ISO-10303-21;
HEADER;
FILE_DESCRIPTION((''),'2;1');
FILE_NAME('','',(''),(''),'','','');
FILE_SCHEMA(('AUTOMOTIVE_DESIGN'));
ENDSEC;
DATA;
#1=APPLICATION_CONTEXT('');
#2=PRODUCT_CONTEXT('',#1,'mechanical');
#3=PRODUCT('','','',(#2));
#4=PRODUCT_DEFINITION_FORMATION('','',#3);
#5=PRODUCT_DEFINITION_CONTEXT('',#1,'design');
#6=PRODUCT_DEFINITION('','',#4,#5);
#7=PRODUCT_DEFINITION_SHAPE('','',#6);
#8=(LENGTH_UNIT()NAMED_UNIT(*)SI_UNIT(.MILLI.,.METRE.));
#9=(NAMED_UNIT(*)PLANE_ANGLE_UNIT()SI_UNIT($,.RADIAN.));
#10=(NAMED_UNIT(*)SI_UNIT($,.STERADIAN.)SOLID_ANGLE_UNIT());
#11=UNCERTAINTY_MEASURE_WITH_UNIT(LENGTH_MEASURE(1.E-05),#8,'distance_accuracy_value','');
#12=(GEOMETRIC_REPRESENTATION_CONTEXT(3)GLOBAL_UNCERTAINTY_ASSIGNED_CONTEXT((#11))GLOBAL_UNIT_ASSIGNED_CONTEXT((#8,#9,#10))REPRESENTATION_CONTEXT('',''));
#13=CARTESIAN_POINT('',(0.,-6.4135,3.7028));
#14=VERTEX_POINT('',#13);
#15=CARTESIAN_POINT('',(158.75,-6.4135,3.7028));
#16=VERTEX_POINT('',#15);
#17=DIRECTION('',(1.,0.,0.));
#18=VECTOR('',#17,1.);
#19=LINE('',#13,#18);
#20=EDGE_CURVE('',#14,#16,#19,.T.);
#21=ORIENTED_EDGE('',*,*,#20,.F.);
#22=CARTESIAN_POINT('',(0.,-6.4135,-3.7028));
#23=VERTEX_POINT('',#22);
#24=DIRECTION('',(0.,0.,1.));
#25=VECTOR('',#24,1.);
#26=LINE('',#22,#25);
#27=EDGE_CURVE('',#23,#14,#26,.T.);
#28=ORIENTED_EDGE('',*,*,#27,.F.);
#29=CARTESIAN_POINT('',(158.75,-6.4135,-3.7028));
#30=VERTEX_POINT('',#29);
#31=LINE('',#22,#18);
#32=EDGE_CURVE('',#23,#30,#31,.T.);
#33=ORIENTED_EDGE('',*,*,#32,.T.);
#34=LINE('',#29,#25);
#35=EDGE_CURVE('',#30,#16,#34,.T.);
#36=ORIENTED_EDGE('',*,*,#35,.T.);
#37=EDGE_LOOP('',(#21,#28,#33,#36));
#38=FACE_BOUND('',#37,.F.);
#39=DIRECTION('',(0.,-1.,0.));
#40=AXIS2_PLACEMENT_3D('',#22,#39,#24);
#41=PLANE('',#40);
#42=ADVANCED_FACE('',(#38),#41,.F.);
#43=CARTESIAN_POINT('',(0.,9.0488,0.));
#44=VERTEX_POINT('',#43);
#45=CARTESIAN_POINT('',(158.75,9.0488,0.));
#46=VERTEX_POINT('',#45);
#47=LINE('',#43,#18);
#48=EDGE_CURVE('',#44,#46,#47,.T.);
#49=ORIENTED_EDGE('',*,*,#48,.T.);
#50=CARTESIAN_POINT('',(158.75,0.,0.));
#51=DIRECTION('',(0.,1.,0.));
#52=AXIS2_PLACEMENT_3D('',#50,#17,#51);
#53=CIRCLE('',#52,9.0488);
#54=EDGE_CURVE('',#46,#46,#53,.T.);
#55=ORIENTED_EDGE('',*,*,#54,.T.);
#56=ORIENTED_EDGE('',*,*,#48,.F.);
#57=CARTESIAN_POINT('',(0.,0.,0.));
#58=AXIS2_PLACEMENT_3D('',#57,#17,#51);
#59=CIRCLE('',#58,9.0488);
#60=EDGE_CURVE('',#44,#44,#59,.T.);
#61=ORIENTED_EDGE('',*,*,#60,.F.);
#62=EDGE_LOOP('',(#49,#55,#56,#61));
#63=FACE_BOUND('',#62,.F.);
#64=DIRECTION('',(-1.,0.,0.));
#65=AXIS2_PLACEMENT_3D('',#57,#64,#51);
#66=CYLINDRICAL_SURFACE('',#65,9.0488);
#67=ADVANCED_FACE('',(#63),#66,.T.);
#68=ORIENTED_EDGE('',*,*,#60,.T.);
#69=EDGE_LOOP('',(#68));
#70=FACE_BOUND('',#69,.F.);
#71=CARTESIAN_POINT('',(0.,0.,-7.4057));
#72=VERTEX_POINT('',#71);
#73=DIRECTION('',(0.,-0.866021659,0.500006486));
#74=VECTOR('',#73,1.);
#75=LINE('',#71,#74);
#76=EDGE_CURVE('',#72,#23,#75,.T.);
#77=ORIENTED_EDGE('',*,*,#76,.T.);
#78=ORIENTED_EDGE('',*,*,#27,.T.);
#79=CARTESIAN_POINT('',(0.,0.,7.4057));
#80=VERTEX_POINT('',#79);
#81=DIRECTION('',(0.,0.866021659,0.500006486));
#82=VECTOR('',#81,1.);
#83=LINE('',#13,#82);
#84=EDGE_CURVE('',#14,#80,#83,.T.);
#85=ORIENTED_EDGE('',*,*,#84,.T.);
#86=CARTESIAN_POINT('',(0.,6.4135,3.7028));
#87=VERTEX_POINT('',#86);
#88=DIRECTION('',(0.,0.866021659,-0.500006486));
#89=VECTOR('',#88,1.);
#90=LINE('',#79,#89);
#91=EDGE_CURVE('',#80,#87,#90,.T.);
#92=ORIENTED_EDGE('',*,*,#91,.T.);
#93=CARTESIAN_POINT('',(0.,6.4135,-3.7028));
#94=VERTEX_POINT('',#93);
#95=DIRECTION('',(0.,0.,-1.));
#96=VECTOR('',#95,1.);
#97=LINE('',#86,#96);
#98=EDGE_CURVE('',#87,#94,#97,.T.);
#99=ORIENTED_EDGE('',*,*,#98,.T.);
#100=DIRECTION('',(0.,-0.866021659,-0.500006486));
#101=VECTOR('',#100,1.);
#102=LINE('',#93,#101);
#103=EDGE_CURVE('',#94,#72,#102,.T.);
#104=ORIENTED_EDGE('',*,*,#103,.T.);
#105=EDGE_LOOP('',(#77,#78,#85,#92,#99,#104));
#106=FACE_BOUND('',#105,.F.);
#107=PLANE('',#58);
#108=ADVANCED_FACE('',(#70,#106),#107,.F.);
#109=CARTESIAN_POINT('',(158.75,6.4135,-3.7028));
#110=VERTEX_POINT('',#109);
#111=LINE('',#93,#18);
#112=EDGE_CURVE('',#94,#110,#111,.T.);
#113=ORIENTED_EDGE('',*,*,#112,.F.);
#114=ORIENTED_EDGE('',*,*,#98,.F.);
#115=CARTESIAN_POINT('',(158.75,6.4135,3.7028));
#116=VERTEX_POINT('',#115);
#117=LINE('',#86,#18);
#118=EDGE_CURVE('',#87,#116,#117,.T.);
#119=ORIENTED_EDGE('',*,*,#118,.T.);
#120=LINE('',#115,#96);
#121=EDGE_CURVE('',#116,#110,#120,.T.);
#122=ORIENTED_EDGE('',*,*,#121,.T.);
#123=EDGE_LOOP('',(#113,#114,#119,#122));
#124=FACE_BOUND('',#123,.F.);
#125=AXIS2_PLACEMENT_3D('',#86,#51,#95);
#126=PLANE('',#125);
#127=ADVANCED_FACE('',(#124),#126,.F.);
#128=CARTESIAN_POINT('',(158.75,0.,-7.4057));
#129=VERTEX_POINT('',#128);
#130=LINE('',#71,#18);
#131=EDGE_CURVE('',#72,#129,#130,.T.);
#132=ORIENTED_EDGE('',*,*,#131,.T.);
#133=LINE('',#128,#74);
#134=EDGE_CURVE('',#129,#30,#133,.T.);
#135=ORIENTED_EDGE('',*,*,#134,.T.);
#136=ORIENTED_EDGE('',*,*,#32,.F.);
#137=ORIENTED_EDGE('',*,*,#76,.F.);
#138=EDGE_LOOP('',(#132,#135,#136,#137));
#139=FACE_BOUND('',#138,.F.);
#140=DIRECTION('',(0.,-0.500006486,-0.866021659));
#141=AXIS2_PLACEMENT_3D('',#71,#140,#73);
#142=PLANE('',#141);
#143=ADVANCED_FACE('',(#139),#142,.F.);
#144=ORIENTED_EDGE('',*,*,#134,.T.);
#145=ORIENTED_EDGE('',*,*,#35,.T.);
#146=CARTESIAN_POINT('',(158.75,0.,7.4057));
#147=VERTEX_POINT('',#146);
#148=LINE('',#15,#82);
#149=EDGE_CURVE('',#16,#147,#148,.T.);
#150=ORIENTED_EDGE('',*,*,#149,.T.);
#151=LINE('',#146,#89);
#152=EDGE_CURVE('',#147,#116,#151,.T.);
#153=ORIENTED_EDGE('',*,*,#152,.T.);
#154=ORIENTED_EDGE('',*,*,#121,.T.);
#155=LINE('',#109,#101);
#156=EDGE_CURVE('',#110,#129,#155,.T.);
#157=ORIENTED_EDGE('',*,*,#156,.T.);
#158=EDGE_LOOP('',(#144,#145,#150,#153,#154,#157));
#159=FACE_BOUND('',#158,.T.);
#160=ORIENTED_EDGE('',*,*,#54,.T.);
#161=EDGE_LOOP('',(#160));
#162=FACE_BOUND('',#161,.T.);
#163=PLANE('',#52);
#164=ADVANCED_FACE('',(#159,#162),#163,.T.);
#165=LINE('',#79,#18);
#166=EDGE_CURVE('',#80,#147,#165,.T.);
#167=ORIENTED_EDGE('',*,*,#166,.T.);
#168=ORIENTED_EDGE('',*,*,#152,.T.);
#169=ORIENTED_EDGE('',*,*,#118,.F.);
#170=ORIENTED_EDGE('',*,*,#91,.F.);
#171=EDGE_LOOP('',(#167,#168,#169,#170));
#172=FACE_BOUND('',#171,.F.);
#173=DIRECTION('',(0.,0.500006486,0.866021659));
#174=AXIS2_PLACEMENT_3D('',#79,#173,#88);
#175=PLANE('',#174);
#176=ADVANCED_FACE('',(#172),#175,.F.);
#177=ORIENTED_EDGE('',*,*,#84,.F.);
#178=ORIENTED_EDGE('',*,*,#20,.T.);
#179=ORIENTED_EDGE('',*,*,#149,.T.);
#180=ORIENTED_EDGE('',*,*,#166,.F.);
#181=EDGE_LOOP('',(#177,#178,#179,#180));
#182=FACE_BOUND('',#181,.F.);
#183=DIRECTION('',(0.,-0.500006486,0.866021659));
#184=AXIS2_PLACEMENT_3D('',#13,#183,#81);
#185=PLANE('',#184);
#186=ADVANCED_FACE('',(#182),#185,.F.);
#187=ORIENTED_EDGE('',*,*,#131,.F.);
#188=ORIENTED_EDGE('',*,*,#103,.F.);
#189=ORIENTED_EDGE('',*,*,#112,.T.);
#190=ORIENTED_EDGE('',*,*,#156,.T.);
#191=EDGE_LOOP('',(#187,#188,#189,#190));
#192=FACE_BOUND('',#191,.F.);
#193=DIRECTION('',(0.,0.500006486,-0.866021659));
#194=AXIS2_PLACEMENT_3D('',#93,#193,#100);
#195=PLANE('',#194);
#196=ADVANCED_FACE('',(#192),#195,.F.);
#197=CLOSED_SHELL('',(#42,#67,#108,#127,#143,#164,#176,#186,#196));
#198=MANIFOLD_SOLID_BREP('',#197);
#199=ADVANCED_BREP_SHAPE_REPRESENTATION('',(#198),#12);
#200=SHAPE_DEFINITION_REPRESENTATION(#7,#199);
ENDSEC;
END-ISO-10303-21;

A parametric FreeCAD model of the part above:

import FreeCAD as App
import Part
import Sketcher

V = App.Vector
Q = App.Units.Quantity

doc = App.newDocument("Part")
body = doc.addObject("PartDesign::Body", "Body")

# Sketch on YZ plane
sketch1 = doc.addObject("Sketcher::SketchObject", "Sketch")
body.addObject(sketch1)
sketch1.AttachmentSupport = (doc.YZ_Plane, [""])
sketch1.MapMode = "FlatFace"
sketch1.addGeometry(Part.Circle(V(0, 0, 0), V(0, 0, 1), 9.0488), False)
sketch1.addGeometry(Part.LineSegment(V(0, -7.4057, 0), V(-6.4135, -3.7028, 0)), False)
sketch1.addGeometry(Part.LineSegment(V(-6.4135, -3.7028, 0), V(-6.4135, 3.7028, 0)), False)
sketch1.addGeometry(Part.LineSegment(V(-6.4135, 3.7028, 0), V(0, 7.4057, 0)), False)
sketch1.addGeometry(Part.LineSegment(V(0, 7.4057, 0), V(6.4135, 3.7028, 0)), False)
sketch1.addGeometry(Part.LineSegment(V(6.4135, 3.7028, 0), V(6.4135, -3.7028, 0)), False)
sketch1.addGeometry(Part.LineSegment(V(6.4135, -3.7028, 0), V(0, -7.4057, 0)), False)
sketch1.addConstraint(Sketcher.Constraint("Coincident", 1, 2, 2, 1))
sketch1.addConstraint(Sketcher.Constraint("Coincident", 2, 2, 3, 1))
sketch1.addConstraint(Sketcher.Constraint("Coincident", 3, 2, 4, 1))
sketch1.addConstraint(Sketcher.Constraint("Coincident", 4, 2, 5, 1))
sketch1.addConstraint(Sketcher.Constraint("Coincident", 5, 2, 6, 1))
sketch1.addConstraint(Sketcher.Constraint("Coincident", 6, 2, 1, 1))
sketch1.addConstraint(Sketcher.Constraint("Vertical", 2))
sketch1.addConstraint(Sketcher.Constraint("Vertical", 5))
sketch1.addConstraint(Sketcher.Constraint("Coincident", 0, 3, -1, 1))
sketch1.addConstraint(Sketcher.Constraint("Symmetric", 1, 2, 4, 2, -1, 1))
sketch1.addConstraint(Sketcher.Constraint("Symmetric", 3, 2, 6, 2, -1, 1))
sketch1.addConstraint(Sketcher.Constraint("PointOnObject", 3, 2, -2))
sketch1.addConstraint(Sketcher.Constraint("Parallel", 3, 6))
sketch1.addConstraint(Sketcher.Constraint("Horizontal", 2, 2, 4, 2))
sketch1.addConstraint(Sketcher.Constraint("Diameter", 0, Q("0.7125 in")))
sketch1.addConstraint(Sketcher.Constraint("Angle", 1, Q("149.9996 deg")))
sketch1.addConstraint(Sketcher.Constraint("DistanceX", 2, 2, 4, 2, Q("0.505 in")))
sketch1.addConstraint(Sketcher.Constraint("DistanceY", 2, 1, 2, 2, Q("7.4056 mm")))
pad1 = doc.addObject("PartDesign::Pad", "Pad")
body.addObject(pad1)
pad1.Profile = sketch1
pad1.Length = Q("6.25 in")

doc.recompute()
